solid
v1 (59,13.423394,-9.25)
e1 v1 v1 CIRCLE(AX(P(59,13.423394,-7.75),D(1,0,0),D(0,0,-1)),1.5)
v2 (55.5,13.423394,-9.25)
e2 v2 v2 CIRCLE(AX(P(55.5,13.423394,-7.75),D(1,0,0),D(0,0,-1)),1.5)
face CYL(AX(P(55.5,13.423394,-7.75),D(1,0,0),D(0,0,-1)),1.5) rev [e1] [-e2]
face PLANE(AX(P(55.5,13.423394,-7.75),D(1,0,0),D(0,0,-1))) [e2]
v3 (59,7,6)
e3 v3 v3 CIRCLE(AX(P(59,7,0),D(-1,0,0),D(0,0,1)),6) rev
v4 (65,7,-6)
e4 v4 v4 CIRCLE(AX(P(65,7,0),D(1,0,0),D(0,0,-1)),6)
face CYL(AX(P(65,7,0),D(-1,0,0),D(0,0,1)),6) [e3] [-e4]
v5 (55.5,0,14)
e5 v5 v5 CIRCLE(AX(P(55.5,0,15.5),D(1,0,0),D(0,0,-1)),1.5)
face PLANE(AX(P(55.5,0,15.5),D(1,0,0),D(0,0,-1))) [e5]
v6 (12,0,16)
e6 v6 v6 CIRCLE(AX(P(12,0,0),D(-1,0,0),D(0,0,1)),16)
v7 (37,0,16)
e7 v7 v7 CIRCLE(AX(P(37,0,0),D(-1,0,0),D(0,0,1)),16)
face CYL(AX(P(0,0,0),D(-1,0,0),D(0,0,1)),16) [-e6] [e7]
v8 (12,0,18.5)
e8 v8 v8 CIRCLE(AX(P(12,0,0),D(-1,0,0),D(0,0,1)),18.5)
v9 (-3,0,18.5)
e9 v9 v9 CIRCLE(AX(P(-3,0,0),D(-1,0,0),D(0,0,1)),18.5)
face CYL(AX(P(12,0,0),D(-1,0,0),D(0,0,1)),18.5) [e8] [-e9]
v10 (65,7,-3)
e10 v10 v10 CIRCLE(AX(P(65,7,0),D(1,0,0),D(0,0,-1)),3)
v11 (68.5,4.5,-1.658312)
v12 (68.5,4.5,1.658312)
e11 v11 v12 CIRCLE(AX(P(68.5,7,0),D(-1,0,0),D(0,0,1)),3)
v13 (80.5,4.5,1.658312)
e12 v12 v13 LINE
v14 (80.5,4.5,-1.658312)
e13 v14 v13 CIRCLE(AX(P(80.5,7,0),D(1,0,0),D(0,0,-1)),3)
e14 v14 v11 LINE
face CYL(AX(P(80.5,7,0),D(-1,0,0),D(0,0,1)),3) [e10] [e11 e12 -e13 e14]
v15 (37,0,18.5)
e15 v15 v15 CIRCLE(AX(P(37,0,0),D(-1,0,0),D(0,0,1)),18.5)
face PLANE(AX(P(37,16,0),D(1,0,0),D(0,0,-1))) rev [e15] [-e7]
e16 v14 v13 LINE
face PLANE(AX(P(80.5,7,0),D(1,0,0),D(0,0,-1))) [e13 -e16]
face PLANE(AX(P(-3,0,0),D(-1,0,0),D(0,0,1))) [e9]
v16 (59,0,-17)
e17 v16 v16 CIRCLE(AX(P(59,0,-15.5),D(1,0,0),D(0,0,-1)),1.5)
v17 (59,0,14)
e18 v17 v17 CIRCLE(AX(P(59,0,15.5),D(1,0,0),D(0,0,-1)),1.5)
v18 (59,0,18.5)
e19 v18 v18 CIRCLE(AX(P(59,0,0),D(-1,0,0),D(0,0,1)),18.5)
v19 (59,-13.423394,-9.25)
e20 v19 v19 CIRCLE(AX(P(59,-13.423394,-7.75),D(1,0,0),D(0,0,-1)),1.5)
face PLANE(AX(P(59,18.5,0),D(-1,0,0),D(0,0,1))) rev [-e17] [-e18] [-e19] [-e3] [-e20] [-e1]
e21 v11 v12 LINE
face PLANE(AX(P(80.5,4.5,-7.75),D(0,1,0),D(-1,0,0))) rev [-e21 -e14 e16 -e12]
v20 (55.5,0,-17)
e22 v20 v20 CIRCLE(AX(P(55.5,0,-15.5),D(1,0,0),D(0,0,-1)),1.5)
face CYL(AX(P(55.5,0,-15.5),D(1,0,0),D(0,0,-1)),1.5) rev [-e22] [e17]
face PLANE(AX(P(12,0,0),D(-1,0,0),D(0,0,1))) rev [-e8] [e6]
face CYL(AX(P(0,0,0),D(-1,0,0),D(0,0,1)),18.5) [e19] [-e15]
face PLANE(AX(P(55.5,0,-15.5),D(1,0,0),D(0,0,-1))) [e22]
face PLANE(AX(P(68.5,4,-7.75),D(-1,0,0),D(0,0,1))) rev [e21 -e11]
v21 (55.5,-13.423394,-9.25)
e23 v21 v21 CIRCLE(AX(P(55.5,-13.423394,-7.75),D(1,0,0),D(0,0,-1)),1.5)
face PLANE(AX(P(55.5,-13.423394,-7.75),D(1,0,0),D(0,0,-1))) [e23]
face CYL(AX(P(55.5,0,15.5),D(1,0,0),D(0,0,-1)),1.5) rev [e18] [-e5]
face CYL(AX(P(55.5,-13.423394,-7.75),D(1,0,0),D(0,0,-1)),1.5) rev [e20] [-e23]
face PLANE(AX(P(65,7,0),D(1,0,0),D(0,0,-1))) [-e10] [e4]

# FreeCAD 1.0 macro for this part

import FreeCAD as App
import Part
import Sketcher
from FreeCAD import Vector
Q = App.Units.Quantity

doc = App.newDocument("Part")
body = doc.addObject("PartDesign::Body", "Body")

sketch1 = doc.addObject("Sketcher::SketchObject", "Sketch")
body.addObject(sketch1)
sketch1.AttachmentSupport = (doc.XY_Plane, [""])
sketch1.MapMode = "FlatFace"
sketch1.addGeometry([
    Part.LineSegment(Vector(0, 7, 0), Vector(0, 0, 0)),
    Part.LineSegment(Vector(0, 0, 0), Vector(59, 0, 0)),
    Part.LineSegment(Vector(59, 0, 0), Vector(59, 18.5, 0)),
    Part.LineSegment(Vector(59, 18.5, 0), Vector(37, 18.5, 0)),
    Part.LineSegment(Vector(37, 18.5, 0), Vector(37, 16, 0)),
    Part.LineSegment(Vector(37, 16, 0), Vector(7, 16, 0)),
    Part.LineSegment(Vector(7, 16, 0), Vector(7, 7, 0)),
    Part.LineSegment(Vector(7, 7, 0), Vector(0, 7, 0)),
], False)
sketch1.addConstraint([
    Sketcher.Constraint("Coincident", 0, 2, 1, 1),
    Sketcher.Constraint("Coincident", 1, 2, 2, 1),
    Sketcher.Constraint("Coincident", 2, 2, 3, 1),
    Sketcher.Constraint("Coincident", 3, 2, 4, 1),
    Sketcher.Constraint("Coincident", 4, 2, 5, 1),
    Sketcher.Constraint("Coincident", 5, 2, 6, 1),
    Sketcher.Constraint("Coincident", 6, 2, 7, 1),
    Sketcher.Constraint("Coincident", 7, 2, 0, 1),
    Sketcher.Constraint("Vertical", 0),
    Sketcher.Constraint("Horizontal", 1),
    Sketcher.Constraint("Vertical", 2),
    Sketcher.Constraint("Horizontal", 3),
    Sketcher.Constraint("Vertical", 4),
    Sketcher.Constraint("Horizontal", 5),
    Sketcher.Constraint("Vertical", 6),
    Sketcher.Constraint("Horizontal", 7),
    Sketcher.Constraint("Coincident", 0, 2, -1, 1),
    Sketcher.Constraint("Equal", 7, 0),
    Sketcher.Constraint("DistanceX", 1, 1, 1, 2, Q("59 mm")),
    Sketcher.Constraint("DistanceX", 3, 2, 3, 1, Q("22 mm")),
    Sketcher.Constraint("DistanceX", 5, 2, 5, 1, Q("30 mm")),
    Sketcher.Constraint("DistanceY", 6, 2, 6, 1, Q("9 mm")),
    Sketcher.Constraint("DistanceY", 2, 1, 2, 2, Q("18.5 mm")),
])
revolution = doc.addObject("PartDesign::Revolution", "Revolution")
body.addObject(revolution)
revolution.Profile = sketch1
revolution.ReferenceAxis = (sketch1, ["H_Axis"])
revolution.Angle = 360

sketch2 = doc.addObject("Sketcher::SketchObject", "Sketch001")
body.addObject(sketch2)
sketch2.AttachmentSupport = (doc.YZ_Plane, [""])
sketch2.MapMode = "FlatFace"
sketch2.AttachmentOffset = App.Placement(Vector(0, 0, 59), App.Rotation())
sketch2.addGeometry(Part.Circle(Vector(7, 0, 0), Vector(0, 0, 1), 6), False)
sketch2.addConstraint([
    Sketcher.Constraint("PointOnObject", 0, 3, -1),
    Sketcher.Constraint("Diameter", 0, Q("12 mm")),
    Sketcher.Constraint("DistanceX", -1, 1, 0, 3, Q("7 mm")),
])
pad1 = doc.addObject("PartDesign::Pad", "Pad")
body.addObject(pad1)
pad1.Profile = sketch2
pad1.Length = 6

sketch3 = doc.addObject("Sketcher::SketchObject", "Sketch002")
body.addObject(sketch3)
sketch3.AttachmentSupport = (doc.YZ_Plane, [""])
sketch3.MapMode = "FlatFace"
sketch3.AttachmentOffset = App.Placement(Vector(0, 0, 65), App.Rotation())
sketch3.addGeometry(Part.Circle(Vector(7, 0, 0), Vector(0, 0, 1), 3), False)
sketch3.addConstraint([
    Sketcher.Constraint("PointOnObject", 0, 3, -1),
    Sketcher.Constraint("Diameter", 0, Q("6 mm")),
    Sketcher.Constraint("DistanceX", -1, 1, 0, 3, Q("7 mm")),
])
pad2 = doc.addObject("PartDesign::Pad", "Pad001")
body.addObject(pad2)
pad2.Profile = sketch3
pad2.Length = 15.5

sketch4 = doc.addObject("Sketcher::SketchObject", "Sketch003")
body.addObject(sketch4)
sketch4.AttachmentSupport = (doc.XY_Plane, [""])
sketch4.MapMode = "FlatFace"
sketch4.addGeometry([
    Part.LineSegment(Vector(68.5, 4.5, 0), Vector(68.5, 4, 0)),
    Part.LineSegment(Vector(68.5, 4, 0), Vector(80.5, 4, 0)),
    Part.LineSegment(Vector(80.5, 4, 0), Vector(80.5, 4.5, 0)),
    Part.LineSegment(Vector(80.5, 4.5, 0), Vector(68.5, 4.5, 0)),
], False)
sketch4.addConstraint([
    Sketcher.Constraint("Coincident", 0, 2, 1, 1),
    Sketcher.Constraint("Coincident", 1, 2, 2, 1),
    Sketcher.Constraint("Coincident", 2, 2, 3, 1),
    Sketcher.Constraint("Coincident", 3, 2, 0, 1),
    Sketcher.Constraint("Vertical", 0),
    Sketcher.Constraint("Horizontal", 1),
    Sketcher.Constraint("Vertical", 2),
    Sketcher.Constraint("Horizontal", 3),
    Sketcher.Constraint("DistanceX", 1, 1, 1, 2, Q("12 mm")),
    Sketcher.Constraint("DistanceY", 0, 2, 0, 1, Q("0.5 mm")),
    Sketcher.Constraint("DistanceY", -1, 1, 0, 2, Q("4 mm")),
    Sketcher.Constraint("DistanceX", -1, 1, 0, 2, Q("68.5 mm")),
])
pocket1 = doc.addObject("PartDesign::Pocket", "Pocket")
body.addObject(pocket1)
pocket1.Profile = sketch4
pocket1.Length = 15.5
pocket1.Midplane = True

sketch5 = doc.addObject("Sketcher::SketchObject", "Sketch004")
body.addObject(sketch5)
sketch5.AttachmentSupport = (doc.YZ_Plane, [""])
sketch5.MapMode = "FlatFace"
sketch5.AttachmentOffset = App.Placement(Vector(0, 0, 59), App.Rotation())
sketch5.addGeometry([
    Part.Circle(Vector(0, -15.5, 0), Vector(0, 0, 1), 1.5),
    Part.Circle(Vector(13.4, -7.8, 0), Vector(0, 0, 1), 1.5),
    Part.Circle(Vector(-13.4, -7.8, 0), Vector(0, 0, 1), 1.5),
    Part.Circle(Vector(0, 15.5, 0), Vector(0, 0, 1), 1.5),
], False)
sketch5.addConstraint([
    Sketcher.Constraint("Equal", 0, 1),
    Sketcher.Constraint("Equal", 1, 2),
    Sketcher.Constraint("Equal", 2, 3),
    Sketcher.Constraint("Symmetric", 0, 3, 3, 3, -1, 1),
    Sketcher.Constraint("Symmetric", 1, 3, 2, 3, -2),
    Sketcher.Constraint("PointOnObject", 0, 3, -2),
    Sketcher.Constraint("Diameter", 0, Q("3 mm")),
    Sketcher.Constraint("DistanceY", 0, 3, 3, 3, Q("31 mm")),
    Sketcher.Constraint("DistanceY", 1, 3, -1, 1, Q("7.75 mm")),
    Sketcher.Constraint("DistanceX", -1, 1, 1, 3, Q("13.423394 mm")),
])
pocket2 = doc.addObject("PartDesign::Pocket", "Pocket001")
body.addObject(pocket2)
pocket2.Profile = sketch5
pocket2.Length = 3.5

sketch6 = doc.addObject("Sketcher::SketchObject", "Sketch005")
body.addObject(sketch6)
sketch6.AttachmentSupport = (doc.YZ_Plane, [""])
sketch6.MapMode = "FlatFace"
sketch6.AttachmentOffset = App.Placement(Vector(0, 0, 7), App.Rotation())
sketch6.addGeometry([
    Part.LineSegment(Vector(13.4, -1.5, 0), Vector(12.4, -1.5, 0)),
    Part.LineSegment(Vector(12.4, -1.5, 0), Vector(12.4, 1.5, 0)),
    Part.LineSegment(Vector(12.4, 1.5, 0), Vector(13.4, 1.5, 0)),
    Part.LineSegment(Vector(13.4, 1.5, 0), Vector(13.4, -1.5, 0)),
    Part.LineSegment(Vector(-12.4, -1.5, 0), Vector(-13.4, -1.5, 0)),
    Part.LineSegment(Vector(-13.4, -1.5, 0), Vector(-13.4, 1.5, 0)),
    Part.LineSegment(Vector(-13.4, 1.5, 0), Vector(-12.4, 1.5, 0)),
    Part.LineSegment(Vector(-12.4, 1.5, 0), Vector(-12.4, -1.5, 0)),
], False)
sketch6.addConstraint([
    Sketcher.Constraint("Coincident", 0, 2, 1, 1),
    Sketcher.Constraint("Coincident", 1, 2, 2, 1),
    Sketcher.Constraint("Coincident", 2, 2, 3, 1),
    Sketcher.Constraint("Coincident", 3, 2, 0, 1),
    Sketcher.Constraint("Coincident", 4, 2, 5, 1),
    Sketcher.Constraint("Coincident", 5, 2, 6, 1),
    Sketcher.Constraint("Coincident", 6, 2, 7, 1),
    Sketcher.Constraint("Coincident", 7, 2, 4, 1),
    Sketcher.Constraint("Horizontal", 0),
    Sketcher.Constraint("Vertical", 1),
    Sketcher.Constraint("Horizontal", 2),
    Sketcher.Constraint("Vertical", 3),
    Sketcher.Constraint("Horizontal", 4),
    Sketcher.Constraint("Vertical", 5),
    Sketcher.Constraint("Horizontal", 6),
    Sketcher.Constraint("Vertical", 7),
    Sketcher.Constraint("Symmetric", 2, 2, 4, 2, -1, 1),
    Sketcher.Constraint("Symmetric", 0, 2, 6, 2, -1, 1),
    Sketcher.Constraint("Horizontal", 3, 2, 4, 2),
    Sketcher.Constraint("DistanceX", 0, 2, 0, 1, Q("1 mm")),
    Sketcher.Constraint("DistanceY", 1, 1, 1, 2, Q("3 mm")),
    Sketcher.Constraint("DistanceX", -1, 1, 0, 2, Q("12.439058 mm")),
])
pad3 = doc.addObject("PartDesign::Pad", "Pad002")
body.addObject(pad3)
pad3.Profile = sketch6
pad3.Length = 4
pad3.Reversed = True

sketch7 = doc.addObject("Sketcher::SketchObject", "Sketch006")
body.addObject(sketch7)
sketch7.AttachmentSupport = (doc.YZ_Plane, [""])
sketch7.MapMode = "FlatFace"
sketch7.AttachmentOffset = App.Placement(Vector(0, 0, 7), App.Rotation())
sketch7.addGeometry(Part.Circle(Vector(0, 0, 0), Vector(0, 0, 1), 18), False)
sketch7.addConstraint([
    Sketcher.Constraint("Coincident", 0, 3, -1, 1),
    Sketcher.Constraint("Diameter", 0, Q("37 mm")),
])
pad4 = doc.addObject("PartDesign::Pad", "Pad003")
body.addObject(pad4)
pad4.Profile = sketch7
pad4.Type = "TwoLengths"
pad4.Length = 10
pad4.Length2 = 5
pad4.Reversed = True

doc.recompute()
